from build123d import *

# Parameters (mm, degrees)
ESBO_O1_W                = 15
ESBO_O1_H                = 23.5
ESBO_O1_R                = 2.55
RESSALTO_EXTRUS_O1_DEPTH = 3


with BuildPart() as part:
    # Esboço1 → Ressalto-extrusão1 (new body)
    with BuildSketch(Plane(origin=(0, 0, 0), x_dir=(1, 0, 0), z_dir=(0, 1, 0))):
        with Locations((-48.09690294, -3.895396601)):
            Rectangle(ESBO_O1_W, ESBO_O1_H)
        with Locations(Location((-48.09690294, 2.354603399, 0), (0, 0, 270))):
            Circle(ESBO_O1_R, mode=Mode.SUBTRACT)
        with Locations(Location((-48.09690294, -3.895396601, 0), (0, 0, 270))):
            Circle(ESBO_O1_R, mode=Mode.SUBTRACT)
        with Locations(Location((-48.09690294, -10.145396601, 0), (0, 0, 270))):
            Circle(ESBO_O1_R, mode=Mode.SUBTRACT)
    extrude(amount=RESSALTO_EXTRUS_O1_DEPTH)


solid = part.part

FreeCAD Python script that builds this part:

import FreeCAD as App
import Part
import Sketcher

V = App.Vector


def add_polygon(sketch, points):
    """Adds a closed chain of lines whose ends are joined by coincident constraints."""
    first, n = sketch.GeometryCount, len(points)
    for a, b in zip(points, points[1:] + points[:1]):
        sketch.addGeometry(Part.LineSegment(App.Vector(*a, 0), App.Vector(*b, 0)), False)
    for i in range(n):
        sketch.addConstraint(Sketcher.Constraint("Coincident", first + i, 2, first + (i + 1) % n, 1))

doc = App.newDocument("Part")
params = doc.addObject("Spreadsheet::Sheet", "Params")
for row, (alias, value) in enumerate([
    ("sketch1_diameter", "5.1 mm"),
    ("sketch1_width", "15 mm"),
    ("sketch1_height", "23.5 mm"),
    ("pad1_length", "3 mm"),
], start=1):
    params.set(f"A{row}", alias)
    params.set(f"B{row}", "=" + value)
    params.setAlias(f"B{row}", alias)

body = doc.addObject("PartDesign::Body", "Body")

sketch1 = body.newObject("Sketcher::SketchObject", "Sketch")
sketch1.AttachmentSupport = (doc.getObject("XZ_Plane"), [""])
sketch1.MapMode = "FlatFace"
add_polygon(sketch1, [(-55.6, -7.9), (-55.6, 15.6), (-40.6, 15.6), (-40.6, -7.9)])
sketch1.addGeometry(Part.Circle(V(-48.1, 10.1, 0), V(0, 0, 1), 2.5), False)
sketch1.addGeometry(Part.Circle(V(-48.1, 3.9, 0), V(0, 0, 1), 2.5), False)
sketch1.addGeometry(Part.Circle(V(-48.1, -2.4, 0), V(0, 0, 1), 2.5), False)
sketch1.addConstraint([
    Sketcher.Constraint("Vertical", 0),
    Sketcher.Constraint("Horizontal", 1),
    Sketcher.Constraint("Vertical", 2),
    Sketcher.Constraint("Horizontal", 3),
    Sketcher.Constraint("Equal", 4, 5),
    Sketcher.Constraint("Equal", 5, 6),
    Sketcher.Constraint("Vertical", 4, 3, 5, 3),
    Sketcher.Constraint("Vertical", 5, 3, 6, 3),
    Sketcher.Constraint("Diameter", 4, 5.1),
    Sketcher.Constraint("DistanceX", 1, 1, 1, 2, 15.0),
    Sketcher.Constraint("DistanceY", 0, 1, 0, 2, 23.5),
    Sketcher.Constraint("DistanceY", 6, 3, 0, 2, 18.0),
    Sketcher.Constraint("DistanceY", 2, 2, 4, 3, 18.0),
    Sketcher.Constraint("DistanceX", 0, 2, 4, 3, 7.5),
    Sketcher.Constraint("DistanceY", 5, 3, 4, 3, 6.25),
    Sketcher.Constraint("DistanceX", 4, 3, -1, 1, 48.096903),
    Sketcher.Constraint("DistanceY", -1, 1, 4, 3, 10.145397),
])
sketch1.setExpression("Constraints[12]", "Params.sketch1_diameter")
sketch1.setExpression("Constraints[13]", "Params.sketch1_width")
sketch1.setExpression("Constraints[14]", "Params.sketch1_height")
pad1 = body.newObject("PartDesign::Pad", "Pad")
pad1.Profile = sketch1
pad1.setExpression("Length", "Params.pad1_length")
pad1.Reversed = True

doc.recompute()
